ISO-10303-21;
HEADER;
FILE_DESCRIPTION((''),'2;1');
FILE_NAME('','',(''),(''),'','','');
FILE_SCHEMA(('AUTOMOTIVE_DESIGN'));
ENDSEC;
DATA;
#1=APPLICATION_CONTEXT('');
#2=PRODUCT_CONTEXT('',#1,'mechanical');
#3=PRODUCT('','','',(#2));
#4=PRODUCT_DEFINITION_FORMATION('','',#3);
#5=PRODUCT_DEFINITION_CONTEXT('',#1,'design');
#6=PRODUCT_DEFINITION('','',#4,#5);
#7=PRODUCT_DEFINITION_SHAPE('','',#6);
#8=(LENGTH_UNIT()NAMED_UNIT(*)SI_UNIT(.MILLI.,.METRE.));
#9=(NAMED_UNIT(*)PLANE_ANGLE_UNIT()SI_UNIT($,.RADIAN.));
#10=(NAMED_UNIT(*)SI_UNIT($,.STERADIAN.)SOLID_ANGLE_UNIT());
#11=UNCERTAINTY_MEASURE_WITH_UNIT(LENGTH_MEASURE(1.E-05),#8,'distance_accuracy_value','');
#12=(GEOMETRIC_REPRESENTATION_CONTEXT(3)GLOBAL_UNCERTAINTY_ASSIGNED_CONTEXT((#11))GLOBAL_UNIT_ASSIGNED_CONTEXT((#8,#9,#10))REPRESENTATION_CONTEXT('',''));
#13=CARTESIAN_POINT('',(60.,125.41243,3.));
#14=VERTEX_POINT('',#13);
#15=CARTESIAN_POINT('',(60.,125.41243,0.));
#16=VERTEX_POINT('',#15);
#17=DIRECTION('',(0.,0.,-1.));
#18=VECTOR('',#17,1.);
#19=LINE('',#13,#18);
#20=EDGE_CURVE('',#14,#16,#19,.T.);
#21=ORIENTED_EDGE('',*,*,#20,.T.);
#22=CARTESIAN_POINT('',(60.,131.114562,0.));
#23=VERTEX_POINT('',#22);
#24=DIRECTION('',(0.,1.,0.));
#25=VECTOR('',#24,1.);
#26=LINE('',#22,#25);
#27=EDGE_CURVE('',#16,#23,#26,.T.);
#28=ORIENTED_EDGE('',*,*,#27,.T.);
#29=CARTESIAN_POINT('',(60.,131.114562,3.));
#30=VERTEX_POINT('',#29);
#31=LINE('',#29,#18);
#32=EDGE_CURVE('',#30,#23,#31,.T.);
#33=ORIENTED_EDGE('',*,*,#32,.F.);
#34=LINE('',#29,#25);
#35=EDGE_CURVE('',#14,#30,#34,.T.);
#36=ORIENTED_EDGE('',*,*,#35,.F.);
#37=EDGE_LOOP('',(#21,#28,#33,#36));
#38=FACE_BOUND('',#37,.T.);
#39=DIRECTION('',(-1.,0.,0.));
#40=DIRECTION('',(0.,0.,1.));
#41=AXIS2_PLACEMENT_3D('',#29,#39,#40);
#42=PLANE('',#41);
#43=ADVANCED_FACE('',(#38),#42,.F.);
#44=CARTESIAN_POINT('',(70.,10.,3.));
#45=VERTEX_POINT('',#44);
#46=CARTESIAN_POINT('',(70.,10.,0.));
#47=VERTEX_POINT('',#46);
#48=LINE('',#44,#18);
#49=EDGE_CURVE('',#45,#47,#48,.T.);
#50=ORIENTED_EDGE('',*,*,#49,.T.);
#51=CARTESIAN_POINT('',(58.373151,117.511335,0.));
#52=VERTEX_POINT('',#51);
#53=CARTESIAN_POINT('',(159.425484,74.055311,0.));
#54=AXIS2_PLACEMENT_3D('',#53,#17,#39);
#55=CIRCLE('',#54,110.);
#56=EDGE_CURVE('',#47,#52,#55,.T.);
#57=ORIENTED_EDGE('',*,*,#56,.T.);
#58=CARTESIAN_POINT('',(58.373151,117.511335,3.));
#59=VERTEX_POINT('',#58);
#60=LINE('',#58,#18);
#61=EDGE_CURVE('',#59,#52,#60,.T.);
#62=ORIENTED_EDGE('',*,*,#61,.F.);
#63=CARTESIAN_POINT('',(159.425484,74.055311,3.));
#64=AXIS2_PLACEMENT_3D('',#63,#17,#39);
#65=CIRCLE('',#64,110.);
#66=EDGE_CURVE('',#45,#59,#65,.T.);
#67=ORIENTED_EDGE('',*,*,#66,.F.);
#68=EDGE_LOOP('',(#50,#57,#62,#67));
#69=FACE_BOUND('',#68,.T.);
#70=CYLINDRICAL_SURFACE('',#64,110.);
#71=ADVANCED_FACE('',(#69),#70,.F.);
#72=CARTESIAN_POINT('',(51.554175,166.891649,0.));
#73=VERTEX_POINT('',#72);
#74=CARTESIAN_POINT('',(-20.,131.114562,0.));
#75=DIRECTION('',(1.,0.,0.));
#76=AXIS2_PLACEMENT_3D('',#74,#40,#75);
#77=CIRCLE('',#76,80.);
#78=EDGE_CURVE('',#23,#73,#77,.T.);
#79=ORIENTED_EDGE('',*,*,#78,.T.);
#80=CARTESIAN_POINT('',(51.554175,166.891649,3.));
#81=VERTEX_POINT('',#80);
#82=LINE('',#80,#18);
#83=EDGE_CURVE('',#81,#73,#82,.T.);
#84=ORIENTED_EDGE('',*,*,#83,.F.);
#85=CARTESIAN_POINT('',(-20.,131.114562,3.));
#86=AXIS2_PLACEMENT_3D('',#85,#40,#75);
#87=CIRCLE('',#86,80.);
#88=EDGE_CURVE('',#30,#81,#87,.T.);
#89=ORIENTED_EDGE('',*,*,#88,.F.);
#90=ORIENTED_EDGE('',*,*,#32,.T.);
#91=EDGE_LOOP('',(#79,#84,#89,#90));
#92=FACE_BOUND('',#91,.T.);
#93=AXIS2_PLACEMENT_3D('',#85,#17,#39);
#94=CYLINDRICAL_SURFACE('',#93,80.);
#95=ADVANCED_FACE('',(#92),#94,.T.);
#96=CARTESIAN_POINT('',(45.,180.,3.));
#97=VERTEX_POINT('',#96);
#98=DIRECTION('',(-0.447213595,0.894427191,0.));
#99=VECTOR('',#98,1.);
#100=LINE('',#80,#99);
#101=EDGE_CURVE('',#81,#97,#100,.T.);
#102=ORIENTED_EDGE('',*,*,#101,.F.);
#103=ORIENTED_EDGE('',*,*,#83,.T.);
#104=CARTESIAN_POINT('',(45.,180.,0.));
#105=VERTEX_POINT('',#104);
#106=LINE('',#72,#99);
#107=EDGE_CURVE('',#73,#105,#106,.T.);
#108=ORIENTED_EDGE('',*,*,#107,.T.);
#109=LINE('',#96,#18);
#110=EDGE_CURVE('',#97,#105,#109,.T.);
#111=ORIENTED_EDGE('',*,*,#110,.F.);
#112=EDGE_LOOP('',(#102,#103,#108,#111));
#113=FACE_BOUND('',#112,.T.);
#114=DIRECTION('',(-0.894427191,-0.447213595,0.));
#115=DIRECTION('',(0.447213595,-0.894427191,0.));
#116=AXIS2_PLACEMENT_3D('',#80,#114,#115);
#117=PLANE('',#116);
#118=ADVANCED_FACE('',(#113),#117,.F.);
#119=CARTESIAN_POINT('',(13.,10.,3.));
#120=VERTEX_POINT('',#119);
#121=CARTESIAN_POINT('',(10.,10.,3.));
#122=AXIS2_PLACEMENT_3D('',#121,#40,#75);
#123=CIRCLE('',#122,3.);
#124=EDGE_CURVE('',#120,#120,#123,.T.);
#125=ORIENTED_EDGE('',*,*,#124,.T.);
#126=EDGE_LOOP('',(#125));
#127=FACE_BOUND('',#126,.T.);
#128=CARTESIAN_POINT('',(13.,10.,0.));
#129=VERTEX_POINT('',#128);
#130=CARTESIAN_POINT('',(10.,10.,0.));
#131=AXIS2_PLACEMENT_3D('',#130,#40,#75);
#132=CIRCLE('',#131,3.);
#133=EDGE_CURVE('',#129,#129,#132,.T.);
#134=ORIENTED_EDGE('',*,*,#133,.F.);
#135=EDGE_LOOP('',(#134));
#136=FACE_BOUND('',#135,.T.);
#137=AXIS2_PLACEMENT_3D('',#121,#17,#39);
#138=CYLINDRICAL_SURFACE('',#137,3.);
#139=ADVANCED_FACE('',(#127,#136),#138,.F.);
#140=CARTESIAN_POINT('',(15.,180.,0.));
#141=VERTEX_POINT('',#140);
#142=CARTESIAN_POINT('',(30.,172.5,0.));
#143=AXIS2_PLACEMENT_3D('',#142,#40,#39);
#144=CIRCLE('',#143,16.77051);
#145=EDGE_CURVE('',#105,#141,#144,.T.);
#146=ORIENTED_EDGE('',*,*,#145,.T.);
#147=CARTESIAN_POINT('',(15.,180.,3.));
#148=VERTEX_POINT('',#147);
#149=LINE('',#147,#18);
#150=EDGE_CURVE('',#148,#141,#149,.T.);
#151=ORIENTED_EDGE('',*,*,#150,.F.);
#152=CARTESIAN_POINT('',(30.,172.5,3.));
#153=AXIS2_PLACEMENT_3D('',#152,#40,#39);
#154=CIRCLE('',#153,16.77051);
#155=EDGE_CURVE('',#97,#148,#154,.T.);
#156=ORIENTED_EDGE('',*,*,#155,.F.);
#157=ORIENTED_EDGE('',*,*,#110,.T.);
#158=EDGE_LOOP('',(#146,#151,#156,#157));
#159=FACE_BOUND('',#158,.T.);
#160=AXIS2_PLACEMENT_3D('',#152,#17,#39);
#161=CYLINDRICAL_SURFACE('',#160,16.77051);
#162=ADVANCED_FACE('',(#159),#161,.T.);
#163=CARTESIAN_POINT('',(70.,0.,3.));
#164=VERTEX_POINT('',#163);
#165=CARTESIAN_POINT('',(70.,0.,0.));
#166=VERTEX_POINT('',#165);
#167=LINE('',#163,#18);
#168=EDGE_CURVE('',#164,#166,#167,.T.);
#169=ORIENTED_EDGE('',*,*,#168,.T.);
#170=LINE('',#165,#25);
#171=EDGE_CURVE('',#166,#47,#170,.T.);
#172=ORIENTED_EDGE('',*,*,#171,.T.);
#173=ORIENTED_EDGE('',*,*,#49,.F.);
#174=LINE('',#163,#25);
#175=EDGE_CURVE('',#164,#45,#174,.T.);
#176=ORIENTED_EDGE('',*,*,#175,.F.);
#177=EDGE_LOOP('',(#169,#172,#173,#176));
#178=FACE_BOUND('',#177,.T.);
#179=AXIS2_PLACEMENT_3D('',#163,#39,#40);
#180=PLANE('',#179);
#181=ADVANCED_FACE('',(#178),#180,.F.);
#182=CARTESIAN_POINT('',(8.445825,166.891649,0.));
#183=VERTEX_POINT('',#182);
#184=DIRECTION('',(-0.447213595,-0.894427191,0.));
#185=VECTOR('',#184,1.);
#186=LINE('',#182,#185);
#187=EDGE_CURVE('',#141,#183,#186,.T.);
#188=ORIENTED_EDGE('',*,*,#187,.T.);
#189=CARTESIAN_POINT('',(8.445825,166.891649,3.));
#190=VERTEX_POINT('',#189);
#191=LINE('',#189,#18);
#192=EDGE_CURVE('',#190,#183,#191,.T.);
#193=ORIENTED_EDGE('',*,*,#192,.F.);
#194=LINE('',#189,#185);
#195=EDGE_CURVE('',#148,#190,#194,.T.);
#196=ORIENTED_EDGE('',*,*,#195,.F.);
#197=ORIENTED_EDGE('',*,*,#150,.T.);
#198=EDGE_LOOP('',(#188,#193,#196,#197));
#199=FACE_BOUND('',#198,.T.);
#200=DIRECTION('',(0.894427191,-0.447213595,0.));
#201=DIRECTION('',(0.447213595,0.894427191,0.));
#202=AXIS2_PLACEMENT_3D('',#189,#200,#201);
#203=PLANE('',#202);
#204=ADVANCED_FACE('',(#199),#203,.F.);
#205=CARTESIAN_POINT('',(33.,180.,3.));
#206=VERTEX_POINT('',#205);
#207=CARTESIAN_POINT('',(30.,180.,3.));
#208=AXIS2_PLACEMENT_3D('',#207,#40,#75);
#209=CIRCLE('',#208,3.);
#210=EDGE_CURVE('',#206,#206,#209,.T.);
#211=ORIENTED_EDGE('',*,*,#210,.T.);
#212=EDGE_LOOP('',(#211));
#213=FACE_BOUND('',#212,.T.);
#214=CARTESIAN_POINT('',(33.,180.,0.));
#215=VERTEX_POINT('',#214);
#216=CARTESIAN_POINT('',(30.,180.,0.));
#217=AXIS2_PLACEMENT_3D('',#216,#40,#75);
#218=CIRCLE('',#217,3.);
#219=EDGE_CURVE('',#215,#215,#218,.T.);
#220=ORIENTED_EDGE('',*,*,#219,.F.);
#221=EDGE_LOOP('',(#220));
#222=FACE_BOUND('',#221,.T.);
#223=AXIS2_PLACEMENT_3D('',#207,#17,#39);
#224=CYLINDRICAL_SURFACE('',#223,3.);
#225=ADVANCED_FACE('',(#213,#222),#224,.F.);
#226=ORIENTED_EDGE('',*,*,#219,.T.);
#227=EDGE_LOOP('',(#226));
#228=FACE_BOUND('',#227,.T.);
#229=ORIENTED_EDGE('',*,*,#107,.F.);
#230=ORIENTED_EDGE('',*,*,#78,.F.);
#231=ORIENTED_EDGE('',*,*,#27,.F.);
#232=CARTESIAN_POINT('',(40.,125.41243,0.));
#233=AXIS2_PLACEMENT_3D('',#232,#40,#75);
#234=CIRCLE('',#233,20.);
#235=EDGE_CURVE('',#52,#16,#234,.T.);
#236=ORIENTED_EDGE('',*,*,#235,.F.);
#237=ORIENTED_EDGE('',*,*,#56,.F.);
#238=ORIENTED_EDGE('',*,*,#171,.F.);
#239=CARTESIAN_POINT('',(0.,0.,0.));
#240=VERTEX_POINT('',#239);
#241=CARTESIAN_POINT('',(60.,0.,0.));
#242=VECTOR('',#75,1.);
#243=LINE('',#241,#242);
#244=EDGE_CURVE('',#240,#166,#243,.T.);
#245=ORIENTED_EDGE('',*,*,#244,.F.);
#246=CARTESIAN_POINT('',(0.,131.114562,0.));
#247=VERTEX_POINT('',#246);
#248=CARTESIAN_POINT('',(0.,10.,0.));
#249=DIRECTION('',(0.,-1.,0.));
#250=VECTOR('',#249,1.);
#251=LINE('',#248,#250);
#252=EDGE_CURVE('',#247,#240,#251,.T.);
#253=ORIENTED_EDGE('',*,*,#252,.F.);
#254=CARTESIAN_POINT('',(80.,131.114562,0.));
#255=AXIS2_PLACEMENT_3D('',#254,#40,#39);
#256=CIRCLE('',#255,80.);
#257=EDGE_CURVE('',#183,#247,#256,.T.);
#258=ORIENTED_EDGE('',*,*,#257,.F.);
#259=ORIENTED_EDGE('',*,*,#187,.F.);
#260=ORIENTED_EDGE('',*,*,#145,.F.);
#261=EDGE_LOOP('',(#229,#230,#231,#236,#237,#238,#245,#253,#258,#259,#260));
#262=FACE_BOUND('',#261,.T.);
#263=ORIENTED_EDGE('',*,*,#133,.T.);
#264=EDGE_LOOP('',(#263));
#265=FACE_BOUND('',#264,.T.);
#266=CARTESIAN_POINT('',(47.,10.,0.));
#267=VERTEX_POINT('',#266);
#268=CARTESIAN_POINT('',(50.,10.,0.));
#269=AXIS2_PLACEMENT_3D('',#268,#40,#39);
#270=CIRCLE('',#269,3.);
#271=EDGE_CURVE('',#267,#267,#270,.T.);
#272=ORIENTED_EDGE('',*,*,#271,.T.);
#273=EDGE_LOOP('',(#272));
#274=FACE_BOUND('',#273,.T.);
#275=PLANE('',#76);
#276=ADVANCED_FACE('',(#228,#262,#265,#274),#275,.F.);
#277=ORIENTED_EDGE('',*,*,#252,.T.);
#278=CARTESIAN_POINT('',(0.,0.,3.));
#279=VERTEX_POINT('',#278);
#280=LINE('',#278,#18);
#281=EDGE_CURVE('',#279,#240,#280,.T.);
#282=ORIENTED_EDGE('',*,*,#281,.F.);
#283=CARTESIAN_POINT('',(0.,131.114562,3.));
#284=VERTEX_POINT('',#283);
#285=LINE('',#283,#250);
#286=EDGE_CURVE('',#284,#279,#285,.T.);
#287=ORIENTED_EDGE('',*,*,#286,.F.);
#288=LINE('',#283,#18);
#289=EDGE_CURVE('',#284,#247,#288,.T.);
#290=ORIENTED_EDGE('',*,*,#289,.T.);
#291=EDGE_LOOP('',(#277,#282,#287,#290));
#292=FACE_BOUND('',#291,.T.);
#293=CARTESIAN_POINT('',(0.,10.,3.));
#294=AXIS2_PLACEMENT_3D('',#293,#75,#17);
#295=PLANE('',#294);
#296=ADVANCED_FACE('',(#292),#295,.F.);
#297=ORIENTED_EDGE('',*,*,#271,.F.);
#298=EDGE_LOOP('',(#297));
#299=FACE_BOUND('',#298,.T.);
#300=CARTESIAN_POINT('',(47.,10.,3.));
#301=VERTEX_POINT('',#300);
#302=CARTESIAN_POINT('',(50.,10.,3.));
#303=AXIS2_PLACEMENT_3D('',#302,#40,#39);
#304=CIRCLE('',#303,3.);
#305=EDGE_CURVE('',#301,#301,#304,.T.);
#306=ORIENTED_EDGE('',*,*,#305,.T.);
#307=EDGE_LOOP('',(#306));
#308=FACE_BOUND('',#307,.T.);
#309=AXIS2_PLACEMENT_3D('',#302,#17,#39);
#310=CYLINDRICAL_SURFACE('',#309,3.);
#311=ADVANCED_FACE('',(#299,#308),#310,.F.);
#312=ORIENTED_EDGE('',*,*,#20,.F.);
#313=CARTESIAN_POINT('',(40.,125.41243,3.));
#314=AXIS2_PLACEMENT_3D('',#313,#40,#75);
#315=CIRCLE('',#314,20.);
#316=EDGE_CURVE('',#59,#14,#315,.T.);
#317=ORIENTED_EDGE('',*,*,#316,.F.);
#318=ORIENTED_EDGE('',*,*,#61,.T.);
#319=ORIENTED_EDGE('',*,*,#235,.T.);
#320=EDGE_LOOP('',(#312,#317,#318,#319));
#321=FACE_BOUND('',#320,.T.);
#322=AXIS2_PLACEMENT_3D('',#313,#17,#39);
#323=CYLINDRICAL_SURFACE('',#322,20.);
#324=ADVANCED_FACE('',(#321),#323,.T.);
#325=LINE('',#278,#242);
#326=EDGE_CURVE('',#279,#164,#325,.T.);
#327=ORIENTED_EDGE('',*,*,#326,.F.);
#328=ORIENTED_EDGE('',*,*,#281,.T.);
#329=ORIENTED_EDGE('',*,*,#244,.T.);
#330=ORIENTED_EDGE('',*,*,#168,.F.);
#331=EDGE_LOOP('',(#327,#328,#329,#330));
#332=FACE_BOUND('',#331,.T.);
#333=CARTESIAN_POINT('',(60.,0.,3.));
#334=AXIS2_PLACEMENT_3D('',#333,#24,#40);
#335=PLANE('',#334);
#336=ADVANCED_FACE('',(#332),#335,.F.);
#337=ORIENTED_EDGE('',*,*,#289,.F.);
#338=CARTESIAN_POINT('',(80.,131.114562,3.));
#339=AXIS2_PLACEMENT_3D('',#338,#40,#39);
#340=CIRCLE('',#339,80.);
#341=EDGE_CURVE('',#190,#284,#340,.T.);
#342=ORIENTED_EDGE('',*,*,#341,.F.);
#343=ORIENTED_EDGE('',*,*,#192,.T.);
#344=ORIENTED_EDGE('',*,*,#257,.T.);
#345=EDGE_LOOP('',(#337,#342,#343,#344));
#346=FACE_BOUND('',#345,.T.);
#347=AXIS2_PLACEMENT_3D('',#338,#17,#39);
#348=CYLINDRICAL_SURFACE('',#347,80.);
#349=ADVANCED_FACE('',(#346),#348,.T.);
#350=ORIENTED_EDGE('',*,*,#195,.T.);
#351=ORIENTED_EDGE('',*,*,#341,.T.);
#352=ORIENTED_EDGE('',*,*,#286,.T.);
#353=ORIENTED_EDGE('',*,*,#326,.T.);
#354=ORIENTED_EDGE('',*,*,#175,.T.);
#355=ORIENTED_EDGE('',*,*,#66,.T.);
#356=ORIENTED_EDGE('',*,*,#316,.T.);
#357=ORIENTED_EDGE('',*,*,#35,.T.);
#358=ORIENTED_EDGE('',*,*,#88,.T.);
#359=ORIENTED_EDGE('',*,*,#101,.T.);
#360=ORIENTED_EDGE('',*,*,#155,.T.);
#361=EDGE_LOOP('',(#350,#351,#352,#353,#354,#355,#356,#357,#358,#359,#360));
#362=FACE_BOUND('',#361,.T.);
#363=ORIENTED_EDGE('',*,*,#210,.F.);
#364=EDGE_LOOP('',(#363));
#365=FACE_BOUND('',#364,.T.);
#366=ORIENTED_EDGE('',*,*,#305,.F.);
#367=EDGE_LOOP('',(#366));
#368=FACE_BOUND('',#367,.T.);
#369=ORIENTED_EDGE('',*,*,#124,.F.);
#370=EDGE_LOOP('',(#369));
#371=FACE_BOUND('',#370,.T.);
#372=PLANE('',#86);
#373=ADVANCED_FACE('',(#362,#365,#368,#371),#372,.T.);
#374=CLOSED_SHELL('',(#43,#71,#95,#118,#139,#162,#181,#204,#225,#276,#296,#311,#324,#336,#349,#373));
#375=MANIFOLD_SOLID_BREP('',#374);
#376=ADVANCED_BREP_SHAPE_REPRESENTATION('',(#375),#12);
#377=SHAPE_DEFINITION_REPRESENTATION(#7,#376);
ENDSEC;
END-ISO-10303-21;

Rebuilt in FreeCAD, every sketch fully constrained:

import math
import FreeCAD as App
import Part
import Sketcher
from FreeCAD import Vector
Q = App.Units.Quantity

doc = App.newDocument("Part")
body = doc.addObject("PartDesign::Body", "Body")

sketch1 = body.newObject("Sketcher::SketchObject", "Sketch")
sketch1.AttachmentSupport = (doc.getObject("XY_Plane"), [""])
sketch1.MapMode = "FlatFace"
sketch1.addGeometry(Part.LineSegment(Vector(15, 180, 0), Vector(8.4, 166.9, 0)), False)
sketch1.addGeometry(Part.ArcOfCircle(Part.Circle(Vector(80, 131.1, 0), Vector(0, 0, 1), 80), math.radians(153), math.radians(180)), False)
sketch1.addGeometry(Part.LineSegment(Vector(0, 131.1, 0), Vector(0, 0, 0)), False)
sketch1.addGeometry(Part.LineSegment(Vector(0, 0, 0), Vector(70, 0, 0)), False)
sketch1.addGeometry(Part.LineSegment(Vector(70, 0, 0), Vector(70, 10, 0)), False)
sketch1.addGeometry(Part.ArcOfCircle(Part.Circle(Vector(159.4, 74.1, 0), Vector(0, 0, 1), 110), math.radians(157), math.radians(216)), False)
sketch1.addGeometry(Part.ArcOfCircle(Part.Circle(Vector(40, 125.4, 0), Vector(0, 0, 1), 20), math.radians(-23), math.radians(0)), False)
sketch1.addGeometry(Part.LineSegment(Vector(60, 125.4, 0), Vector(60, 131.1, 0)), False)
sketch1.addGeometry(Part.ArcOfCircle(Part.Circle(Vector(-20, 131.1, 0), Vector(0, 0, 1), 80), math.radians(0), math.radians(27)), False)
sketch1.addGeometry(Part.LineSegment(Vector(51.6, 166.9, 0), Vector(45, 180, 0)), False)
sketch1.addGeometry(Part.ArcOfCircle(Part.Circle(Vector(30, 172.5, 0), Vector(0, 0, 1), 16.8), math.radians(27), math.radians(153)), False)
sketch1.addGeometry(Part.Circle(Vector(50, 10, 0), Vector(0, 0, 1), 3), False)
sketch1.addGeometry(Part.Circle(Vector(10, 10, 0), Vector(0, 0, 1), 3), False)
sketch1.addGeometry(Part.Circle(Vector(30, 180, 0), Vector(0, 0, 1), 3), False)
sketch1.addConstraint(Sketcher.Constraint("Tangent", 0, 2, 1, 1))
sketch1.addConstraint(Sketcher.Constraint("Tangent", 1, 2, 2, 1))
sketch1.addConstraint(Sketcher.Constraint("Coincident", 2, 2, 3, 1))
sketch1.addConstraint(Sketcher.Constraint("Coincident", 3, 2, 4, 1))
sketch1.addConstraint(Sketcher.Constraint("Coincident", 4, 2, 5, 2))
sketch1.addConstraint(Sketcher.Constraint("Tangent", 5, 1, 6, 1))
sketch1.addConstraint(Sketcher.Constraint("Tangent", 6, 2, 7, 1))
sketch1.addConstraint(Sketcher.Constraint("Tangent", 7, 2, 8, 1))
sketch1.addConstraint(Sketcher.Constraint("Tangent", 8, 2, 9, 1))
sketch1.addConstraint(Sketcher.Constraint("Tangent", 9, 2, 10, 1))
sketch1.addConstraint(Sketcher.Constraint("Tangent", 10, 2, 0, 1))
sketch1.addConstraint(Sketcher.Constraint("Vertical", 2))
sketch1.addConstraint(Sketcher.Constraint("Horizontal", 3))
sketch1.addConstraint(Sketcher.Constraint("Vertical", 4))
sketch1.addConstraint(Sketcher.Constraint("Vertical", 7))
sketch1.addConstraint(Sketcher.Constraint("Coincident", 2, 2, -1, 1))
sketch1.addConstraint(Sketcher.Constraint("Equal", 1, 8))
sketch1.addConstraint(Sketcher.Constraint("Equal", 11, 12))
sketch1.addConstraint(Sketcher.Constraint("Equal", 12, 13))
sketch1.addConstraint(Sketcher.Constraint("Horizontal", 1, 3, 8, 3))
sketch1.addConstraint(Sketcher.Constraint("Horizontal", 11, 3, 12, 3))
sketch1.addConstraint(Sketcher.Constraint("Horizontal", 12, 3, 4, 2))
sketch1.addConstraint(Sketcher.Constraint("Horizontal", 0, 2, 8, 2))
sketch1.addConstraint(Sketcher.Constraint("Horizontal", 13, 3, 9, 2))
sketch1.addConstraint(Sketcher.Constraint("Vertical", 10, 3, 13, 3))
sketch1.addConstraint(Sketcher.Constraint("Diameter", 11, Q("6 mm")))
sketch1.addConstraint(Sketcher.Constraint("Radius", 1, Q("80 mm")))
sketch1.addConstraint(Sketcher.Constraint("Radius", 5, Q("110 mm")))
sketch1.addConstraint(Sketcher.Constraint("Radius", 6, Q("20 mm")))
sketch1.addConstraint(Sketcher.Constraint("DistanceX", 3, 1, 3, 2, Q("70 mm")))
sketch1.addConstraint(Sketcher.Constraint("DistanceY", 4, 1, 4, 2, Q("10 mm")))
sketch1.addConstraint(Sketcher.Constraint("DistanceX", -1, 1, 6, 3, Q("40 mm")))
sketch1.addConstraint(Sketcher.Constraint("DistanceX", -1, 1, 11, 3, Q("50 mm")))
sketch1.addConstraint(Sketcher.Constraint("DistanceX", -1, 1, 12, 3, Q("10 mm")))
sketch1.addConstraint(Sketcher.Constraint("DistanceY", -1, 1, 13, 3, Q("180 mm")))
sketch1.addConstraint(Sketcher.Constraint("DistanceX", -1, 1, 9, 2, Q("45 mm")))
sketch1.addConstraint(Sketcher.Constraint("DistanceY", -1, 1, 10, 3, Q("172.5 mm")))
sketch1.addConstraint(Sketcher.Constraint("DistanceY", 7, 1, 7, 2, Q("5.702131 mm")))
pad1 = body.newObject("PartDesign::Pad", "Pad")
pad1.Profile = sketch1
pad1.Length = 3

doc.recompute()
